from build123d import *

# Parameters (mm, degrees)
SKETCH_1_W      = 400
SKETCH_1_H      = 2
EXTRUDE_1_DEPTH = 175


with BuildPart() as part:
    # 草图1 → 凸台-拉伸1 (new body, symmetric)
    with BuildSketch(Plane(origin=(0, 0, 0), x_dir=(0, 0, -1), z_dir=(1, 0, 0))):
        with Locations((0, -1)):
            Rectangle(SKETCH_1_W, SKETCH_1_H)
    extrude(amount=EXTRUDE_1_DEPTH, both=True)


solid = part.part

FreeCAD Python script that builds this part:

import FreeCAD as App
import Part
import Sketcher


def add_polygon(sketch, points):
    """Adds a closed chain of lines whose ends are joined by coincident constraints."""
    first, n = sketch.GeometryCount, len(points)
    for a, b in zip(points, points[1:] + points[:1]):
        sketch.addGeometry(Part.LineSegment(App.Vector(*a, 0), App.Vector(*b, 0)), False)
    for i in range(n):
        sketch.addConstraint(Sketcher.Constraint("Coincident", first + i, 2, first + (i + 1) % n, 1))

doc = App.newDocument("Part")
body = doc.addObject("PartDesign::Body", "Body")

sketch1 = doc.addObject("Sketcher::SketchObject", "Sketch")
body.addObject(sketch1)
sketch1.AttachmentSupport = (doc.YZ_Plane, [""])
sketch1.MapMode = "FlatFace"
add_polygon(sketch1, [(0, 200), (-2, 200), (-2, -200), (0, -200)])
sketch1.addConstraint([
    Sketcher.Constraint("Horizontal", 0),
    Sketcher.Constraint("Vertical", 1),
    Sketcher.Constraint("Horizontal", 2),
    Sketcher.Constraint("Vertical", 3),
    Sketcher.Constraint("Symmetric", 2, 2, 3, 2, -1, 1),
    Sketcher.Constraint("DistanceX", 0, 2, 0, 1, 2.0),
    Sketcher.Constraint("DistanceY", 1, 2, 1, 1, 400.0),
])
pad1 = doc.addObject("PartDesign::Pad", "Pad")
body.addObject(pad1)
pad1.Profile = sketch1
pad1.Length = 350
pad1.Midplane = True

doc.recompute()
